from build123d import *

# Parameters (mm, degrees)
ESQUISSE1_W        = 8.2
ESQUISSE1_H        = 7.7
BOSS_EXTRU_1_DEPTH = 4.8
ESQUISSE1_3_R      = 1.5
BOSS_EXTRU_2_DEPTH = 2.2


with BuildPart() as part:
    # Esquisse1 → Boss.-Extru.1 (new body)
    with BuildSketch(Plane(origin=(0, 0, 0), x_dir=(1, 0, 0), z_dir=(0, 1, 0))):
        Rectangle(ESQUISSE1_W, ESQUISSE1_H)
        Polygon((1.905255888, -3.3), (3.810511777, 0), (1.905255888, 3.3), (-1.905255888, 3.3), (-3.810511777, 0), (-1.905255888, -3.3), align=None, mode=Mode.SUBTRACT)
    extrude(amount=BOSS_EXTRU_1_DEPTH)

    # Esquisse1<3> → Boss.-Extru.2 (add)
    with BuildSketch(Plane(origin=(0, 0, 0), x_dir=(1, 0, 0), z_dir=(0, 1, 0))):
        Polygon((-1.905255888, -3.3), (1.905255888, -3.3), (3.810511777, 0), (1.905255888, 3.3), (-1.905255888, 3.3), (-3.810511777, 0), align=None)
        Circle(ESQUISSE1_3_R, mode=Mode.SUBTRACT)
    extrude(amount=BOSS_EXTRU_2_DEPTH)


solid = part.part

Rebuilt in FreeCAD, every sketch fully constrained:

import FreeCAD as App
import Part
import Sketcher
from FreeCAD import Vector
Q = App.Units.Quantity


def add_polygon(sketch, points):
    """Adds a closed chain of lines whose ends are joined by coincident constraints."""
    first, n = sketch.GeometryCount, len(points)
    for a, b in zip(points, points[1:] + points[:1]):
        sketch.addGeometry(Part.LineSegment(App.Vector(*a, 0), App.Vector(*b, 0)), False)
    for i in range(n):
        sketch.addConstraint(Sketcher.Constraint("Coincident", first + i, 2, first + (i + 1) % n, 1))

doc = App.newDocument("Part")
body = doc.addObject("PartDesign::Body", "Body")

sketch1 = body.newObject("Sketcher::SketchObject", "Sketch")
sketch1.AttachmentSupport = (doc.getObject("XZ_Plane"), [""])
sketch1.MapMode = "FlatFace"
add_polygon(sketch1, [(-4.1, -3.9), (-4.1, 3.9), (4.1, 3.9), (4.1, -3.9)])
add_polygon(sketch1, [(3.8, 0), (1.9, 3.3), (-1.9, 3.3), (-3.8, 0), (-1.9, -3.3), (1.9, -3.3)])
sketch1.addConstraint([
    Sketcher.Constraint("Vertical", 0),
    Sketcher.Constraint("Horizontal", 1),
    Sketcher.Constraint("Vertical", 2),
    Sketcher.Constraint("Horizontal", 3),
    Sketcher.Constraint("Horizontal", 5),
    Sketcher.Constraint("Horizontal", 8),
    Sketcher.Constraint("Symmetric", 0, 2, 2, 2, -1, 1),
    Sketcher.Constraint("Symmetric", 4, 2, 7, 2, -1, 1),
    Sketcher.Constraint("Symmetric", 6, 2, 9, 2, -1, 1),
    Sketcher.Constraint("PointOnObject", 6, 2, -1),
    Sketcher.Constraint("Parallel", 6, 9),
    Sketcher.Constraint("Vertical", 5, 2, 7, 2),
    Sketcher.Constraint("Angle", 4, Q("120 deg")),
    Sketcher.Constraint("DistanceX", 1, 1, 1, 2, 8.2),
    Sketcher.Constraint("DistanceY", 0, 1, 0, 2, 7.7),
    Sketcher.Constraint("DistanceY", -1, 1, 4, 2, 3.3),
    Sketcher.Constraint("DistanceX", 5, 2, 5, 1, 3.810512),
])
pad1 = body.newObject("PartDesign::Pad", "Pad")
pad1.Profile = sketch1
pad1.Length = 4.8
pad1.Reversed = True

sketch2 = body.newObject("Sketcher::SketchObject", "Sketch001")
sketch2.AttachmentSupport = (doc.getObject("XZ_Plane"), [""])
sketch2.MapMode = "FlatFace"
add_polygon(sketch2, [(-1.9, 3.3), (1.9, 3.3), (3.8, 0), (1.9, -3.3), (-1.9, -3.3), (-3.8, 0)])
sketch2.addGeometry(Part.Circle(Vector(0, 0, 0), Vector(0, 0, 1), 1.5), False)
sketch2.addConstraint([
    Sketcher.Constraint("Horizontal", 0),
    Sketcher.Constraint("Horizontal", 3),
    Sketcher.Constraint("Coincident", 6, 3, -1, 1),
    Sketcher.Constraint("Symmetric", 0, 2, 3, 2, -1, 1),
    Sketcher.Constraint("Symmetric", 1, 2, 4, 2, -1, 1),
    Sketcher.Constraint("PointOnObject", 1, 2, -1),
    Sketcher.Constraint("Parallel", 2, 5),
    Sketcher.Constraint("Vertical", 0, 2, 2, 2),
    Sketcher.Constraint("Diameter", 6, 3.0),
    Sketcher.Constraint("Angle", 1, Q("-60 deg")),
    Sketcher.Constraint("DistanceY", -1, 1, 0, 2, 3.3),
    Sketcher.Constraint("DistanceX", 0, 1, 0, 2, 3.810512),
])
pad2 = body.newObject("PartDesign::Pad", "Pad001")
pad2.Profile = sketch2
pad2.Length = 2.2
pad2.Reversed = True

doc.recompute()
